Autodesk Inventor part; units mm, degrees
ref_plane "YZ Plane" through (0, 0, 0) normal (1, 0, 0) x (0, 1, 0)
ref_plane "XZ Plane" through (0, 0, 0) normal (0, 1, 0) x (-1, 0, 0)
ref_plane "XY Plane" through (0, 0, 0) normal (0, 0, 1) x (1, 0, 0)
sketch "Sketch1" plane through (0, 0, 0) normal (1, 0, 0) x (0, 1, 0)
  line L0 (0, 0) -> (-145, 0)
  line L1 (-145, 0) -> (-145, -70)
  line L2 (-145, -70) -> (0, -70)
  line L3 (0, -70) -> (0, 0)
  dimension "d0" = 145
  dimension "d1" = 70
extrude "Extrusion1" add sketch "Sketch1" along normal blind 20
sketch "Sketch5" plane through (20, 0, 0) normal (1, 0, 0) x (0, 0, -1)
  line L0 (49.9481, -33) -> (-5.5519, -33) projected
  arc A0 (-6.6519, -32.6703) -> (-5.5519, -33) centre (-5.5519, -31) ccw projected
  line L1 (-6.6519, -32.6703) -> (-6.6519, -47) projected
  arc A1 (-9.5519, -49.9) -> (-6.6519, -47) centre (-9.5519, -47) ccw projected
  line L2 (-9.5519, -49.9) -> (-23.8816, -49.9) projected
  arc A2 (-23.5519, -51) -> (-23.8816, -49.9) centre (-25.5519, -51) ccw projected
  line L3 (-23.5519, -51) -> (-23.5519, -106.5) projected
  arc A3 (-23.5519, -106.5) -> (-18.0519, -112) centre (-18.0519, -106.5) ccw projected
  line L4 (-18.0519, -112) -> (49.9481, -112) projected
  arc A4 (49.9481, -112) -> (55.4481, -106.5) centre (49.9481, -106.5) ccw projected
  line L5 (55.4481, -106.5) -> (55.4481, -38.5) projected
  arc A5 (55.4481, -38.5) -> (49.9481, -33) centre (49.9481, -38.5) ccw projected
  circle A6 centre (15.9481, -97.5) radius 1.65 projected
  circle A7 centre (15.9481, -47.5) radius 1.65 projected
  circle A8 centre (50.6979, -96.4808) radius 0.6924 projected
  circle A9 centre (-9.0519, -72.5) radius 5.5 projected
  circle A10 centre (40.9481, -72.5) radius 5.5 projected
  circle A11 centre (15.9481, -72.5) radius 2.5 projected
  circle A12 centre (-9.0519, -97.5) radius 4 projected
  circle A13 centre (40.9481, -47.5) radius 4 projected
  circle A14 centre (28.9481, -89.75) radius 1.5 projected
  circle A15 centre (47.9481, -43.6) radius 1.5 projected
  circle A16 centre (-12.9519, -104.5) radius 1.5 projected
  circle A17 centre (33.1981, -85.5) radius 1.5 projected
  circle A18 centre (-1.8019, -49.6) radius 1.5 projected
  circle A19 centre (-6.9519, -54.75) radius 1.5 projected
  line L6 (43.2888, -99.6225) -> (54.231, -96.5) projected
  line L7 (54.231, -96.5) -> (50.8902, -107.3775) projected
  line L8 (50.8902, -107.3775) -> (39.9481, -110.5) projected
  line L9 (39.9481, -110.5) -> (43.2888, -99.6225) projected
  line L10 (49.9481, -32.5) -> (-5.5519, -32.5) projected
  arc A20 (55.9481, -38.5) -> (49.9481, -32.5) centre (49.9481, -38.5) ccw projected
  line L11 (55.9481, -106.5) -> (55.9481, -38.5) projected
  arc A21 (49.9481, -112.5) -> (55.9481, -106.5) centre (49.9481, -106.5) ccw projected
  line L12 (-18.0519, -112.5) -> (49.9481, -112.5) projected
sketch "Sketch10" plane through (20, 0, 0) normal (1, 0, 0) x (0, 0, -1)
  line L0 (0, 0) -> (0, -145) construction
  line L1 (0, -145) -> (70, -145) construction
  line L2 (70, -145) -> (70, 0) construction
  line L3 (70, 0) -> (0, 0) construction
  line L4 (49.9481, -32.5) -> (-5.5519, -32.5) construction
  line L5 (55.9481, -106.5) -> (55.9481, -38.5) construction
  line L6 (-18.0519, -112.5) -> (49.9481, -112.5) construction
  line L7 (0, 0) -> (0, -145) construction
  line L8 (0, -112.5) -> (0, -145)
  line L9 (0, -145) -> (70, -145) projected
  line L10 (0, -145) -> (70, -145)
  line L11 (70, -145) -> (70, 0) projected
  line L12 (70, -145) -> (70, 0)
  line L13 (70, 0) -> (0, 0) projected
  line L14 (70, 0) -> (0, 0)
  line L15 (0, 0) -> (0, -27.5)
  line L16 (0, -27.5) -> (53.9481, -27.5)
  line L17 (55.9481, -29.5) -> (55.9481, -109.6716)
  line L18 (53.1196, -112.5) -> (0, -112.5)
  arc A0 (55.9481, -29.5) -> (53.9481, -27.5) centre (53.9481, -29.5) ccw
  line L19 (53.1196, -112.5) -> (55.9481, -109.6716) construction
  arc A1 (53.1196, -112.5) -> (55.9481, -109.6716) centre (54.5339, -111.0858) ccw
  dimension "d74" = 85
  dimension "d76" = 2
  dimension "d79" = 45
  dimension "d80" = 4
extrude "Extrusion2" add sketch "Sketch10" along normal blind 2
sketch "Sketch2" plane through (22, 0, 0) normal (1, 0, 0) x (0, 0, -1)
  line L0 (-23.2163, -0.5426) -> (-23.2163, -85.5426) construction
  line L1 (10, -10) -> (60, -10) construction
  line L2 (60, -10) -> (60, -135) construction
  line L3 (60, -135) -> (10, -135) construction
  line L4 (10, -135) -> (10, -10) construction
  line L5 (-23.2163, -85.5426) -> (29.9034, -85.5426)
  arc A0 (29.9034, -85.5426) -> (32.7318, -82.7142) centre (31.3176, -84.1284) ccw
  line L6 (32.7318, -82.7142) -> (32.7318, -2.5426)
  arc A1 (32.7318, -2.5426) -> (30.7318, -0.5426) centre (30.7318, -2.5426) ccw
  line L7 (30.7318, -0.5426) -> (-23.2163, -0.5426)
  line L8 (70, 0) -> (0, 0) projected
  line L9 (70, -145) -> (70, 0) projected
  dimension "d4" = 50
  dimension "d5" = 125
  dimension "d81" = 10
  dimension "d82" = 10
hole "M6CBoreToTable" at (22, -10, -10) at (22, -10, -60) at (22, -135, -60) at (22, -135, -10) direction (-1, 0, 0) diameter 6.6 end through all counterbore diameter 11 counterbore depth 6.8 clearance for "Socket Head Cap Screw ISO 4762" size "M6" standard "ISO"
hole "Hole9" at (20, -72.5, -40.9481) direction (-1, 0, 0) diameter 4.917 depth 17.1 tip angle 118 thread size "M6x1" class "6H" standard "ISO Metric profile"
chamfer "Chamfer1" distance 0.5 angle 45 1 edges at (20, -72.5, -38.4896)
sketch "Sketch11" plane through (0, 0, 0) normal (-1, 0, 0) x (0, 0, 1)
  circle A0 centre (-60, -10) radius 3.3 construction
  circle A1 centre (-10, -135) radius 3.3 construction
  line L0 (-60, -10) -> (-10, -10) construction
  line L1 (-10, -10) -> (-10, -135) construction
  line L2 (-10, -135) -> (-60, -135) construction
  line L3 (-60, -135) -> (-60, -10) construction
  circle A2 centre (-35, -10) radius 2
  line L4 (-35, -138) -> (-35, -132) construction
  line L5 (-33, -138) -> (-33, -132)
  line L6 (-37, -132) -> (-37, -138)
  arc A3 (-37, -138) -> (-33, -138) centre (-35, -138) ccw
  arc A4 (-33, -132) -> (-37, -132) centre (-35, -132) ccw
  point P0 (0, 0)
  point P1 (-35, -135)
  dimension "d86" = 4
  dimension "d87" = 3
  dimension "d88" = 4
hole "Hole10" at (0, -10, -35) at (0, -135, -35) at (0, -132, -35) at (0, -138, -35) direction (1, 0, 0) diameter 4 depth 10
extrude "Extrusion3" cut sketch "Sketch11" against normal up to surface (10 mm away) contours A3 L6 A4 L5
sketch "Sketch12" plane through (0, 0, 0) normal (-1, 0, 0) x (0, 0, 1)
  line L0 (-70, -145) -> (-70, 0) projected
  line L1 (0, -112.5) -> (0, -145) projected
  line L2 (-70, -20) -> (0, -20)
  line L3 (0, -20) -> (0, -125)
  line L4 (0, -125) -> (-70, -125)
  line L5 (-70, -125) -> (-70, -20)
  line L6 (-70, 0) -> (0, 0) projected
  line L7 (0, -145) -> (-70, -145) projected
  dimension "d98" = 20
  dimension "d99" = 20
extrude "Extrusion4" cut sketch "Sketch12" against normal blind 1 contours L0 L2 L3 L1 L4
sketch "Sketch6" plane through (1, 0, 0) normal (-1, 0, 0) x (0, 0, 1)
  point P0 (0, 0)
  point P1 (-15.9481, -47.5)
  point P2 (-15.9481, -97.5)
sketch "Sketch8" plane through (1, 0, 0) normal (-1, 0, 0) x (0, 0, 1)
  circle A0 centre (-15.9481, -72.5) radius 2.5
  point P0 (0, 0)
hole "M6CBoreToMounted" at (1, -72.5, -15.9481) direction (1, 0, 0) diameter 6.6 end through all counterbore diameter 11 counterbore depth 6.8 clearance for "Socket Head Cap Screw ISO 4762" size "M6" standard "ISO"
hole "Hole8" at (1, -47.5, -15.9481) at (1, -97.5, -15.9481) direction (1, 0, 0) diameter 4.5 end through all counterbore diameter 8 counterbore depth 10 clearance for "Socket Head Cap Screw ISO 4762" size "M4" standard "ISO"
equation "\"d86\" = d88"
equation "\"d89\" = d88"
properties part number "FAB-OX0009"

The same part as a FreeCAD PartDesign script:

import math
import FreeCAD as App
import Part
import Sketcher

V = App.Vector


def edges_at(feature, points):
    """Names of the edges that pass closest to the given points."""
    edges = feature.Shape.Edges
    near = lambda p: min(range(len(edges)), key=lambda i: edges[i].distToShape(Part.Vertex(*p))[0])
    return sorted({f"Edge{near(p) + 1}" for p in points})

doc = App.newDocument("Part")
params = doc.addObject("Spreadsheet::Sheet", "Params")
for row, (alias, value) in enumerate([
    ("sketch1_width", "145 mm"),
    ("sketch1_height", "70 mm"),
    ("pad1_length", "20 mm"),
    ("sketch2_radius", "2 mm"),
    ("sketch2_width", "145 mm"),
    ("sketch2_height", "70 mm"),
    ("sketch2_width2", "32.5 mm"),
    ("pad2_length", "2 mm"),
    ("sketch3_diameter", "6.6 mm"),
    ("hole_diameter", "6.6 mm"),
    ("hole_cbore_diameter", "11 mm"),
    ("hole_cbore_depth", "6.8 mm"),
    ("hole2_diameter", "4.917 mm"),
    ("hole2_depth", "17.1 mm"),
    ("chamfer_size", "0.5 mm"),
    ("sketch5_diameter", "4 mm"),
    ("hole3_diameter", "4 mm"),
    ("hole3_depth", "10 mm"),
    ("sketch6_radius", "2 mm"),
    ("sketch6_width", "6 mm"),
    ("pocket1_length", "10 mm"),
    ("sketch7_width", "105 mm"),
    ("sketch7_height", "70 mm"),
    ("pocket2_length", "1 mm"),
    ("sketch8_diameter", "6.6 mm"),
    ("hole4_diameter", "6.6 mm"),
    ("hole4_cbore_diameter", "11 mm"),
    ("hole4_cbore_depth", "6.8 mm"),
    ("sketch9_diameter", "4.5 mm"),
    ("hole5_diameter", "4.5 mm"),
    ("hole5_cbore_diameter", "8 mm"),
    ("hole5_cbore_depth", "10 mm"),
], start=1):
    params.set(f"A{row}", alias)
    params.set(f"B{row}", "=" + value)
    params.setAlias(f"B{row}", alias)

body = doc.addObject("PartDesign::Body", "Body")

# Sketch on YZ plane
sketch1 = body.newObject("Sketcher::SketchObject", "Sketch")
sketch1.AttachmentSupport = (doc.getObject("YZ_Plane"), [""])
sketch1.MapMode = "FlatFace"
sketch1.addGeometry([
    Part.LineSegment(V(0, -70, 0), V(0, 0, 0)),
    Part.LineSegment(V(0, 0, 0), V(-145, 0, 0)),
    Part.LineSegment(V(-145, 0, 0), V(-145, -70, 0)),
    Part.LineSegment(V(-145, -70, 0), V(0, -70, 0)),
], False)
sketch1.addConstraint([
    Sketcher.Constraint("Coincident", 0, 2, 1, 1),
    Sketcher.Constraint("Coincident", 1, 2, 2, 1),
    Sketcher.Constraint("Coincident", 2, 2, 3, 1),
    Sketcher.Constraint("Coincident", 3, 2, 0, 1),
    Sketcher.Constraint("Vertical", 0),
    Sketcher.Constraint("Horizontal", 1),
    Sketcher.Constraint("Vertical", 2),
    Sketcher.Constraint("Horizontal", 3),
    Sketcher.Constraint("Coincident", 0, 2, -1, 1),
    Sketcher.Constraint("DistanceX", 1, 2, 1, 1, 145.0),
    Sketcher.Constraint("DistanceY", 0, 1, 0, 2, 70.0),
])
sketch1.setExpression("Constraints[9]", "Params.sketch1_width")
sketch1.setExpression("Constraints[10]", "Params.sketch1_height")
pad1 = body.newObject("PartDesign::Pad", "Pad")
pad1.Profile = sketch1
pad1.setExpression("Length", "Params.pad1_length")

# Sketch on YZ plane
sketch2 = body.newObject("Sketcher::SketchObject", "Sketch001")
sketch2.AttachmentSupport = (doc.getObject("YZ_Plane"), [""])
sketch2.MapMode = "FlatFace"
sketch2.AttachmentOffset = App.Placement(V(0, 0, 20), App.Rotation())
sketch2.addGeometry([
    Part.LineSegment(V(-112.5, -53.1, 0), V(-112.5, 0, 0)),  # 0
    Part.LineSegment(V(-112.5, 0, 0), V(-145, 0, 0)),  # 1
    Part.LineSegment(V(-145, 0, 0), V(-145, -70, 0)),  # 2
    Part.LineSegment(V(-145, -70, 0), V(0, -70, 0)),  # 3
    Part.LineSegment(V(0, -70, 0), V(0, 0, 0)),  # 4
    Part.LineSegment(V(0, 0, 0), V(-27.5, 0, 0)),  # 5
    Part.LineSegment(V(-27.5, 0, 0), V(-27.5, -53.9, 0)),  # 6
    Part.ArcOfCircle(Part.Circle(V(-29.5, -53.9, 0), V(0, 0, 1), 2), math.radians(-90), math.radians(0)),  # 7
    Part.LineSegment(V(-29.5, -55.9, 0), V(-109.7, -55.9, 0)),  # 8
    Part.ArcOfCircle(Part.Circle(V(-111.1, -54.5, 0), V(0, 0, 1), 2), math.radians(135), math.radians(315)),  # 9
], False)
sketch2.addConstraint([
    Sketcher.Constraint("Coincident", 0, 2, 1, 1),
    Sketcher.Constraint("Coincident", 1, 2, 2, 1),
    Sketcher.Constraint("Coincident", 2, 2, 3, 1),
    Sketcher.Constraint("Coincident", 3, 2, 4, 1),
    Sketcher.Constraint("Coincident", 4, 2, 5, 1),
    Sketcher.Constraint("Coincident", 5, 2, 6, 1),
    Sketcher.Constraint("Tangent", 6, 2, 7, 2),
    Sketcher.Constraint("Tangent", 7, 1, 8, 1),
    Sketcher.Constraint("Coincident", 8, 2, 9, 2),
    Sketcher.Constraint("Coincident", 9, 1, 0, 1),
    Sketcher.Constraint("Vertical", 0),
    Sketcher.Constraint("Horizontal", 1),
    Sketcher.Constraint("Vertical", 2),
    Sketcher.Constraint("Horizontal", 3),
    Sketcher.Constraint("Vertical", 4),
    Sketcher.Constraint("Horizontal", 5),
    Sketcher.Constraint("Vertical", 6),
    Sketcher.Constraint("Horizontal", 8),
    Sketcher.Constraint("Coincident", 4, 2, -1, 1),
    Sketcher.Constraint("Equal", 7, 9),
    Sketcher.Constraint("PointOnObject", 0, 2, -1),
    Sketcher.Constraint("Radius", 7, 2.0),
    Sketcher.Constraint("DistanceX", 0, 2, 5, 2, 85.0),
    Sketcher.Constraint("DistanceX", 3, 1, 3, 2, 145.0),
    Sketcher.Constraint("DistanceY", 2, 2, 2, 1, 70.0),
    Sketcher.Constraint("DistanceX", 1, 2, 1, 1, 32.5),
    Sketcher.Constraint("DistanceY", 6, 2, 6, 1, 53.948),
    Sketcher.Constraint("DistanceX", 8, 2, 8, 1, 80.1716),
    Sketcher.Constraint("DistanceY", 9, 3, -1, 1, 54.534),
])
sketch2.setExpression("Constraints[21]", "Params.sketch2_radius")
sketch2.setExpression("Constraints[23]", "Params.sketch2_width")
sketch2.setExpression("Constraints[24]", "Params.sketch2_height")
sketch2.setExpression("Constraints[25]", "Params.sketch2_width2")
pad2 = body.newObject("PartDesign::Pad", "Pad001")
pad2.Profile = sketch2
pad2.setExpression("Length", "Params.pad2_length")

# Sketch on YZ plane
sketch3 = body.newObject("Sketcher::SketchObject", "Sketch002")
sketch3.AttachmentSupport = (doc.getObject("YZ_Plane"), [""])
sketch3.MapMode = "FlatFace"
sketch3.AttachmentOffset = App.Placement(V(0, 0, 22), App.Rotation())
sketch3.addGeometry([
    Part.Circle(V(-10, -10, 0), V(0, 0, 1), 3.3),
    Part.Circle(V(-10, -60, 0), V(0, 0, 1), 3.3),
    Part.Circle(V(-135, -60, 0), V(0, 0, 1), 3.3),
    Part.Circle(V(-135, -10, 0), V(0, 0, 1), 3.3),
], False)
sketch3.addConstraint([
    Sketcher.Constraint("Equal", 0, 1),
    Sketcher.Constraint("Equal", 1, 2),
    Sketcher.Constraint("Equal", 2, 3),
    Sketcher.Constraint("Horizontal", 1, 3, 2, 3),
    Sketcher.Constraint("Horizontal", 0, 3, 3, 3),
    Sketcher.Constraint("Vertical", 0, 3, 1, 3),
    Sketcher.Constraint("Vertical", 2, 3, 3, 3),
    Sketcher.Constraint("Diameter", 0, 6.6),
    Sketcher.Constraint("DistanceX", 0, 3, -1, 1, 10.0),
    Sketcher.Constraint("DistanceY", 0, 3, -1, 1, 10.0),
    Sketcher.Constraint("DistanceY", 1, 3, -1, 1, 60.0),
    Sketcher.Constraint("DistanceX", 2, 3, -1, 1, 135.0),
])
sketch3.setExpression("Constraints[7]", "Params.sketch3_diameter")
doc.recompute()
hole = body.newObject("PartDesign::Hole", "Hole")
hole.Profile = sketch3
hole.ThreadType = "None"
hole.setExpression("Diameter", "Params.hole_diameter")
hole.DepthType = "ThroughAll"
hole.HoleCutType = "Counterbore"
hole.setExpression("HoleCutDiameter", "Params.hole_cbore_diameter")
hole.setExpression("HoleCutDepth", "Params.hole_cbore_depth")

# Sketch on YZ plane
sketch4 = body.newObject("Sketcher::SketchObject", "Sketch003")
sketch4.AttachmentSupport = (doc.getObject("YZ_Plane"), [""])
sketch4.MapMode = "FlatFace"
sketch4.AttachmentOffset = App.Placement(V(0, 0, 20), App.Rotation())
sketch4.addGeometry(Part.Circle(V(-72.5, -40.9, 0), V(0, 0, 1), 2.5), False)
sketch4.addConstraint([
    Sketcher.Constraint("Diameter", 0, 4.917),
    Sketcher.Constraint("DistanceX", 0, 3, -1, 1, 72.5),
    Sketcher.Constraint("DistanceY", 0, 3, -1, 1, 40.948),
])
doc.recompute()
hole2 = body.newObject("PartDesign::Hole", "Hole001")
hole2.Profile = sketch4
hole2.ThreadType = "None"
hole2.setExpression("Diameter", "Params.hole2_diameter")
hole2.DepthType = "Dimension"
hole2.setExpression("Depth", "Params.hole2_depth")
hole2.DrillPoint = "Angled"
hole2.DrillPointAngle = 118
doc.recompute()

chamfer = body.newObject("PartDesign::Chamfer", "Chamfer")
chamfer.Base = (hole2, edges_at(hole2, [(20, -72.5, -38.49)]))
chamfer.setExpression("Size", "Params.chamfer_size")

# Sketch on YZ plane
sketch5 = body.newObject("Sketcher::SketchObject", "Sketch004")
sketch5.AttachmentSupport = (doc.getObject("YZ_Plane"), [""])
sketch5.MapMode = "FlatFace"
sketch5.addGeometry([
    Part.Circle(V(-10, -35, 0), V(0, 0, 1), 2),
    Part.Circle(V(-135, -35, 0), V(0, 0, 1), 2),
    Part.Circle(V(-132, -35, 0), V(0, 0, 1), 2),
    Part.Circle(V(-138, -35, 0), V(0, 0, 1), 2),
], False)
sketch5.addConstraint([
    Sketcher.Constraint("Equal", 0, 1),
    Sketcher.Constraint("Equal", 1, 2),
    Sketcher.Constraint("Equal", 2, 3),
    Sketcher.Constraint("Horizontal", 0, 3, 1, 3),
    Sketcher.Constraint("Horizontal", 1, 3, 2, 3),
    Sketcher.Constraint("Horizontal", 2, 3, 3, 3),
    Sketcher.Constraint("Diameter", 0, 4.0),
    Sketcher.Constraint("DistanceX", 0, 3, -1, 1, 10.0),
    Sketcher.Constraint("DistanceY", 0, 3, -1, 1, 35.0),
    Sketcher.Constraint("DistanceX", 1, 3, -1, 1, 135.0),
    Sketcher.Constraint("DistanceX", 2, 3, -1, 1, 132.0),
    Sketcher.Constraint("DistanceX", 3, 3, -1, 1, 138.0),
])
sketch5.setExpression("Constraints[6]", "Params.sketch5_diameter")
doc.recompute()
hole3 = body.newObject("PartDesign::Hole", "Hole002")
hole3.Profile = sketch5
hole3.ThreadType = "None"
hole3.setExpression("Diameter", "Params.hole3_diameter")
hole3.DepthType = "Dimension"
hole3.setExpression("Depth", "Params.hole3_depth")
hole3.DrillPoint = "Flat"
hole3.Reversed = True

# Sketch on YZ plane
sketch6 = body.newObject("Sketcher::SketchObject", "Sketch005")
sketch6.AttachmentSupport = (doc.getObject("YZ_Plane"), [""])
sketch6.MapMode = "FlatFace"
sketch6.addGeometry([
    Part.ArcOfCircle(Part.Circle(V(-138, -35, 0), V(0, 0, 1), 2), math.radians(90), math.radians(270)),
    Part.LineSegment(V(-138, -33, 0), V(-132, -33, 0)),
    Part.ArcOfCircle(Part.Circle(V(-132, -35, 0), V(0, 0, 1), 2), math.radians(-90), math.radians(90)),
    Part.LineSegment(V(-132, -37, 0), V(-138, -37, 0)),
], False)
sketch6.addConstraint([
    Sketcher.Constraint("Tangent", 0, 1, 1, 1),
    Sketcher.Constraint("Tangent", 1, 2, 2, 2),
    Sketcher.Constraint("Tangent", 2, 1, 3, 1),
    Sketcher.Constraint("Tangent", 3, 2, 0, 2),
    Sketcher.Constraint("Horizontal", 1),
    Sketcher.Constraint("Horizontal", 3),
    Sketcher.Constraint("Radius", 0, 2.0),
    Sketcher.Constraint("DistanceX", 1, 1, 1, 2, 6.0),
    Sketcher.Constraint("DistanceX", 0, 3, -1, 1, 138.0),
    Sketcher.Constraint("DistanceY", 0, 3, -1, 1, 35.0),
])
sketch6.setExpression("Constraints[6]", "Params.sketch6_radius")
sketch6.setExpression("Constraints[7]", "Params.sketch6_width")
pocket1 = body.newObject("PartDesign::Pocket", "Pocket")
pocket1.Profile = sketch6
pocket1.setExpression("Length", "Params.pocket1_length")
pocket1.Reversed = True

# Sketch on YZ plane
sketch7 = body.newObject("Sketcher::SketchObject", "Sketch006")
sketch7.AttachmentSupport = (doc.getObject("YZ_Plane"), [""])
sketch7.MapMode = "FlatFace"
sketch7.addGeometry([
    Part.LineSegment(V(-20, -70, 0), V(-125, -70, 0)),
    Part.LineSegment(V(-125, -70, 0), V(-125, 0, 0)),
    Part.LineSegment(V(-125, 0, 0), V(-20, 0, 0)),
    Part.LineSegment(V(-20, 0, 0), V(-20, -70, 0)),
], False)
sketch7.addConstraint([
    Sketcher.Constraint("Coincident", 0, 2, 1, 1),
    Sketcher.Constraint("Coincident", 1, 2, 2, 1),
    Sketcher.Constraint("Coincident", 2, 2, 3, 1),
    Sketcher.Constraint("Coincident", 3, 2, 0, 1),
    Sketcher.Constraint("Horizontal", 0),
    Sketcher.Constraint("Vertical", 1),
    Sketcher.Constraint("Horizontal", 2),
    Sketcher.Constraint("Vertical", 3),
    Sketcher.Constraint("PointOnObject", 1, 2, -1),
    Sketcher.Constraint("DistanceX", 2, 2, -1, 1, 20.0),
    Sketcher.Constraint("DistanceX", 0, 2, 0, 1, 105.0),
    Sketcher.Constraint("DistanceY", 1, 1, 1, 2, 70.0),
])
sketch7.setExpression("Constraints[10]", "Params.sketch7_width")
sketch7.setExpression("Constraints[11]", "Params.sketch7_height")
pocket2 = body.newObject("PartDesign::Pocket", "Pocket001")
pocket2.Profile = sketch7
pocket2.setExpression("Length", "Params.pocket2_length")
pocket2.Reversed = True

# Sketch on YZ plane
sketch8 = body.newObject("Sketcher::SketchObject", "Sketch007")
sketch8.AttachmentSupport = (doc.getObject("YZ_Plane"), [""])
sketch8.MapMode = "FlatFace"
sketch8.AttachmentOffset = App.Placement(V(0, 0, 1), App.Rotation())
sketch8.addGeometry(Part.Circle(V(-72.5, -15.9, 0), V(0, 0, 1), 3.3), False)
sketch8.addConstraint([
    Sketcher.Constraint("Diameter", 0, 6.6),
    Sketcher.Constraint("DistanceX", 0, 3, -1, 1, 72.5),
    Sketcher.Constraint("DistanceY", 0, 3, -1, 1, 15.948),
])
sketch8.setExpression("Constraints[0]", "Params.sketch8_diameter")
doc.recompute()
hole4 = body.newObject("PartDesign::Hole", "Hole003")
hole4.Profile = sketch8
hole4.ThreadType = "None"
hole4.setExpression("Diameter", "Params.hole4_diameter")
hole4.DepthType = "ThroughAll"
hole4.HoleCutType = "Counterbore"
hole4.setExpression("HoleCutDiameter", "Params.hole4_cbore_diameter")
hole4.setExpression("HoleCutDepth", "Params.hole4_cbore_depth")
hole4.Reversed = True

# Sketch on YZ plane
sketch9 = body.newObject("Sketcher::SketchObject", "Sketch008")
sketch9.AttachmentSupport = (doc.getObject("YZ_Plane"), [""])
sketch9.MapMode = "FlatFace"
sketch9.AttachmentOffset = App.Placement(V(0, 0, 1), App.Rotation())
sketch9.addGeometry([
    Part.Circle(V(-47.5, -15.9, 0), V(0, 0, 1), 2.2),
    Part.Circle(V(-97.5, -15.9, 0), V(0, 0, 1), 2.2),
], False)
sketch9.addConstraint([
    Sketcher.Constraint("Equal", 0, 1),
    Sketcher.Constraint("Horizontal", 0, 3, 1, 3),
    Sketcher.Constraint("Diameter", 0, 4.5),
    Sketcher.Constraint("DistanceX", 1, 3, 0, 3, 50.0),
    Sketcher.Constraint("DistanceX", 0, 3, -1, 1, 47.5),
    Sketcher.Constraint("DistanceY", 0, 3, -1, 1, 15.948),
])
sketch9.setExpression("Constraints[2]", "Params.sketch9_diameter")
doc.recompute()
hole5 = body.newObject("PartDesign::Hole", "Hole004")
hole5.Profile = sketch9
hole5.ThreadType = "None"
hole5.setExpression("Diameter", "Params.hole5_diameter")
hole5.DepthType = "ThroughAll"
hole5.HoleCutType = "Counterbore"
hole5.setExpression("HoleCutDiameter", "Params.hole5_cbore_diameter")
hole5.setExpression("HoleCutDepth", "Params.hole5_cbore_depth")
hole5.Reversed = True

doc.recompute()
